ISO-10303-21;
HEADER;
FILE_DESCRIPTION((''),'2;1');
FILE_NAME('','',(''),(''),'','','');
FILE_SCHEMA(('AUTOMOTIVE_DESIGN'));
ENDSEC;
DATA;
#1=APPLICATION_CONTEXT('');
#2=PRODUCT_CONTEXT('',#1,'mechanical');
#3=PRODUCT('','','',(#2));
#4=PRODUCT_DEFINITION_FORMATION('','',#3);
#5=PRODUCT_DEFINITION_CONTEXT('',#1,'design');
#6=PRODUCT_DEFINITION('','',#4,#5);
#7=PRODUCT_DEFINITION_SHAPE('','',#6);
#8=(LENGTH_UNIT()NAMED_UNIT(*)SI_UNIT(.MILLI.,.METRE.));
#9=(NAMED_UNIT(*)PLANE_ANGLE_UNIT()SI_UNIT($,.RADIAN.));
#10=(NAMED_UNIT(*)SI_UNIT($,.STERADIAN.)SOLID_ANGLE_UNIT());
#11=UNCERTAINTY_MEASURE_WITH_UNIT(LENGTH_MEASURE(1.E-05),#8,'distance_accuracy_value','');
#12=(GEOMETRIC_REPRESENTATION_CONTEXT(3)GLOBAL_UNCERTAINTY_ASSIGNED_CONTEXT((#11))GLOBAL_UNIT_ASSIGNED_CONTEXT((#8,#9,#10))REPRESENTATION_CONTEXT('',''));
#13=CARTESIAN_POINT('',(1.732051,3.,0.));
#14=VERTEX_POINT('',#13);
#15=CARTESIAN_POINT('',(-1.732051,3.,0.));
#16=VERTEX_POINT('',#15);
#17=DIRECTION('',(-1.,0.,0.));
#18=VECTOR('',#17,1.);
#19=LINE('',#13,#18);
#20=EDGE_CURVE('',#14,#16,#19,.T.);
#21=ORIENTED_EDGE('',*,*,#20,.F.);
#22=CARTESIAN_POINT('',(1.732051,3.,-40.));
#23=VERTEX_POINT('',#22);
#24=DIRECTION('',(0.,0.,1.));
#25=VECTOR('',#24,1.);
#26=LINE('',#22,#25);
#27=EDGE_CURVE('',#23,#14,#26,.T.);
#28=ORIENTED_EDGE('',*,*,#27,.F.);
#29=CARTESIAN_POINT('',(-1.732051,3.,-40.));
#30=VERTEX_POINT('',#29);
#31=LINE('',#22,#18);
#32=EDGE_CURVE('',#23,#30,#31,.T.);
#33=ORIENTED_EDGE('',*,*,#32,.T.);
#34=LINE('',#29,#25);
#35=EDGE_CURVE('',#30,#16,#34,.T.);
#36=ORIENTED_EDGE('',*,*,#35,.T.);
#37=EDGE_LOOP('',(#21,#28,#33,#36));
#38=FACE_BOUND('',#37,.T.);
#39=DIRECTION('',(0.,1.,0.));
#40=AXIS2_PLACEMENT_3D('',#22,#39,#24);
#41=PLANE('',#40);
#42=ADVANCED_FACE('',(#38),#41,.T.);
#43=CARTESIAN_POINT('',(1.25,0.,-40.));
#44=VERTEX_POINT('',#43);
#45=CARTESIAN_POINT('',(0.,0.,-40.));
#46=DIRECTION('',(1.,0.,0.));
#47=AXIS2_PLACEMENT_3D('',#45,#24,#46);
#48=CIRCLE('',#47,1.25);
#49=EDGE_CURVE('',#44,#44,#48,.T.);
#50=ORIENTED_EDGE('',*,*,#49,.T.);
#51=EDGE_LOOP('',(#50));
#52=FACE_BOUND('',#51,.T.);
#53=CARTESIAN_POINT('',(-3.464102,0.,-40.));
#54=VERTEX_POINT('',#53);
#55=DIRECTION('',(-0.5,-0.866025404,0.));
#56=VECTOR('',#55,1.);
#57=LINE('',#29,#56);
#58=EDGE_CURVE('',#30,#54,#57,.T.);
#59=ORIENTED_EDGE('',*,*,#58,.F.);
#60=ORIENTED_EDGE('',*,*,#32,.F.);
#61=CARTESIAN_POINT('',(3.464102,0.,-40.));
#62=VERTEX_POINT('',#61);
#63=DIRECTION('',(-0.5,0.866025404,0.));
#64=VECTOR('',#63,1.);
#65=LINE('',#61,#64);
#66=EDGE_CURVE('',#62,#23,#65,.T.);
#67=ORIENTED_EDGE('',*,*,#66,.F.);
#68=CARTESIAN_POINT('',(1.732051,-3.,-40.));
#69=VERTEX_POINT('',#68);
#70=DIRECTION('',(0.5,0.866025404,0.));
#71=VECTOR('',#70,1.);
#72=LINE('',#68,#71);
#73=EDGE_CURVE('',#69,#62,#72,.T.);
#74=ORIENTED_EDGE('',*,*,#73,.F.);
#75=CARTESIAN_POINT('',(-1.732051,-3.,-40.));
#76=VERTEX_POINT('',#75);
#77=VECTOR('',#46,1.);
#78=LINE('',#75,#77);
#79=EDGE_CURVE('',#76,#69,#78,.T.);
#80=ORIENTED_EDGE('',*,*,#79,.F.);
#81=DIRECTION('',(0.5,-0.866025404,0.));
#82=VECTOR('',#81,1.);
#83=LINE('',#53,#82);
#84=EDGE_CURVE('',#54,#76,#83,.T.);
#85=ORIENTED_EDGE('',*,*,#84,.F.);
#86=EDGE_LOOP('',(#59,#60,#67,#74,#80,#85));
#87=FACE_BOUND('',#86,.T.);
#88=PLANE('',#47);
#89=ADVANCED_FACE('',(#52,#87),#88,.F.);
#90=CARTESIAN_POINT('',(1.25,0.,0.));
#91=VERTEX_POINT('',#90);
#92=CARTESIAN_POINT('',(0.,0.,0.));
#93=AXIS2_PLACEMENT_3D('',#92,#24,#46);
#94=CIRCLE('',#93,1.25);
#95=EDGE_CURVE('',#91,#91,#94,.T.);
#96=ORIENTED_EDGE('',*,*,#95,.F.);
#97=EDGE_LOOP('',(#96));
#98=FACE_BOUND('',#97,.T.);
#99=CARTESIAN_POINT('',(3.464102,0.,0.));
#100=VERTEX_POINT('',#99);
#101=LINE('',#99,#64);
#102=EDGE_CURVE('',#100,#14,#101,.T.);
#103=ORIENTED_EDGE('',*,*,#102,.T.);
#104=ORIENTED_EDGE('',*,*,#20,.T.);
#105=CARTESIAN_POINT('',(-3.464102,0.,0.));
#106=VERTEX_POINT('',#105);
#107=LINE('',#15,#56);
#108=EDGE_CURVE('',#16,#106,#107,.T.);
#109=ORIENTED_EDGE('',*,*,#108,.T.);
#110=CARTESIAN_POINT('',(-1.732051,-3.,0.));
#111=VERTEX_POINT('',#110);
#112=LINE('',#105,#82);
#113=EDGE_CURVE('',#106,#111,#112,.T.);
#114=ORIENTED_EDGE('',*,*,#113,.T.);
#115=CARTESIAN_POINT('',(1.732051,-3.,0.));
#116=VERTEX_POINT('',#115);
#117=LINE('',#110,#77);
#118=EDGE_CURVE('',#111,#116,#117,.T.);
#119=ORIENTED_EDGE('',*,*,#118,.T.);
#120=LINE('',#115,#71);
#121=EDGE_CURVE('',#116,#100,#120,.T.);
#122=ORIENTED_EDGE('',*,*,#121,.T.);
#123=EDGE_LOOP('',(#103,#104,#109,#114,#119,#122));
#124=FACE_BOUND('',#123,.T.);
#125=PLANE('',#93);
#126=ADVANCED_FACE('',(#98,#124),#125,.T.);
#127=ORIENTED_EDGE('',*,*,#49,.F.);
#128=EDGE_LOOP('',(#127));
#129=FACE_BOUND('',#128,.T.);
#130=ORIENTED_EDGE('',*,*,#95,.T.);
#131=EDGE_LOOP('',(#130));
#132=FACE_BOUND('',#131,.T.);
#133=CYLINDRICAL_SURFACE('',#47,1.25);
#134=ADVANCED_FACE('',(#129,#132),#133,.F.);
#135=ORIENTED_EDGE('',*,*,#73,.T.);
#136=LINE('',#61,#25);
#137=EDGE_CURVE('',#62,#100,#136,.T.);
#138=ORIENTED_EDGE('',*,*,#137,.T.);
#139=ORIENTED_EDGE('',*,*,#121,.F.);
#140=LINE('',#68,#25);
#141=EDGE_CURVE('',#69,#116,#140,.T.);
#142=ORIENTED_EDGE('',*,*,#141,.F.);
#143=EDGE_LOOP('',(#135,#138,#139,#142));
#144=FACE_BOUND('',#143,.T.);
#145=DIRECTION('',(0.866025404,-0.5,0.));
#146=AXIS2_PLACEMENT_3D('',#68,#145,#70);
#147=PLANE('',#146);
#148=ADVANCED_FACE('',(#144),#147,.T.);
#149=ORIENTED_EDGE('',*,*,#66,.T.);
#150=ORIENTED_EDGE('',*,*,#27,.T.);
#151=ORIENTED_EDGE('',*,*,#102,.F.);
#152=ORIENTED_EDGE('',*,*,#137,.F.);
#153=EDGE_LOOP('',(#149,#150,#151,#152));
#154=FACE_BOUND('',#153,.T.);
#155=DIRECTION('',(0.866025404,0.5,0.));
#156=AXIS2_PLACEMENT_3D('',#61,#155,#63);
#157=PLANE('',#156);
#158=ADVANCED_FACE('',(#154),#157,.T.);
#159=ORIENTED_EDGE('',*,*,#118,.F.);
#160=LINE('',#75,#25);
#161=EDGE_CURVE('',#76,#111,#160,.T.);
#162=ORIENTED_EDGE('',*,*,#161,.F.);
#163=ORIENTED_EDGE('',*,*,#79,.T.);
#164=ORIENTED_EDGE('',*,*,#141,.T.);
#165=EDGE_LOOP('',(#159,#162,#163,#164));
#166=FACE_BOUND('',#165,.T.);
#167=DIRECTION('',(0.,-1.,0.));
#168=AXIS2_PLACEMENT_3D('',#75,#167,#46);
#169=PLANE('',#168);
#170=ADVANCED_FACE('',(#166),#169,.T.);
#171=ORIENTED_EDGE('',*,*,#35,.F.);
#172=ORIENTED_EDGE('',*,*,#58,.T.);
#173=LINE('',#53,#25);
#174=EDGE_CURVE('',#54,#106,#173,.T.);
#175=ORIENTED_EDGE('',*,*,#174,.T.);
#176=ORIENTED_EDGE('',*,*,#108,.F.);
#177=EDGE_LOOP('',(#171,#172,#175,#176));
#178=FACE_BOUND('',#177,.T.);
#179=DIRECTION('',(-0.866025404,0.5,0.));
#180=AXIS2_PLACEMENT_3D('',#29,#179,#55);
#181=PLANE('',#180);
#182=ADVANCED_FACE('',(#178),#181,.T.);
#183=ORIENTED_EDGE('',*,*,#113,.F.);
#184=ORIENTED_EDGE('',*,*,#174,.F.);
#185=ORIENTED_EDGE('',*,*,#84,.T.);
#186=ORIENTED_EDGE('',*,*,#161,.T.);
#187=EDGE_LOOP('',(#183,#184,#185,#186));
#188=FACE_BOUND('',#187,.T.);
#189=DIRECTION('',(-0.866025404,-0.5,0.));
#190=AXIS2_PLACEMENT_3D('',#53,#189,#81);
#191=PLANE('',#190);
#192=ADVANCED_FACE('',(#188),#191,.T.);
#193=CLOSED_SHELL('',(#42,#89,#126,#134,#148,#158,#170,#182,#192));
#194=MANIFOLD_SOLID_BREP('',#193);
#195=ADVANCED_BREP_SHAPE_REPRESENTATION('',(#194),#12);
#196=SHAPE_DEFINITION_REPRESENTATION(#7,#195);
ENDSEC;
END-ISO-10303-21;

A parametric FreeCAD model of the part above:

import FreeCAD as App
import Part
import Sketcher
from FreeCAD import Vector
Q = App.Units.Quantity

doc = App.newDocument("Part")
body = doc.addObject("PartDesign::Body", "Body")

# Sketch on XY plane
sketch1 = body.newObject("Sketcher::SketchObject", "Sketch")
sketch1.AttachmentSupport = (doc.getObject("XY_Plane"), [""])
sketch1.MapMode = "FlatFace"
sketch1.addGeometry(Part.LineSegment(Vector(3.5, 0, 0), Vector(1.7, 3, 0)), False)
sketch1.addGeometry(Part.LineSegment(Vector(1.7, 3, 0), Vector(-1.7, 3, 0)), False)
sketch1.addGeometry(Part.LineSegment(Vector(-1.7, 3, 0), Vector(-3.5, 0, 0)), False)
sketch1.addGeometry(Part.LineSegment(Vector(-3.5, 0, 0), Vector(-1.7, -3, 0)), False)
sketch1.addGeometry(Part.LineSegment(Vector(-1.7, -3, 0), Vector(1.7, -3, 0)), False)
sketch1.addGeometry(Part.LineSegment(Vector(1.7, -3, 0), Vector(3.5, 0, 0)), False)
sketch1.addConstraint(Sketcher.Constraint("Coincident", 0, 2, 1, 1))
sketch1.addConstraint(Sketcher.Constraint("Coincident", 1, 2, 2, 1))
sketch1.addConstraint(Sketcher.Constraint("Coincident", 2, 2, 3, 1))
sketch1.addConstraint(Sketcher.Constraint("Coincident", 3, 2, 4, 1))
sketch1.addConstraint(Sketcher.Constraint("Coincident", 4, 2, 5, 1))
sketch1.addConstraint(Sketcher.Constraint("Coincident", 5, 2, 0, 1))
sketch1.addConstraint(Sketcher.Constraint("Horizontal", 1))
sketch1.addConstraint(Sketcher.Constraint("Horizontal", 4))
sketch1.addConstraint(Sketcher.Constraint("Symmetric", 0, 2, 3, 2, -1, 1))
sketch1.addConstraint(Sketcher.Constraint("Symmetric", 2, 2, 5, 2, -1, 1))
sketch1.addConstraint(Sketcher.Constraint("PointOnObject", 2, 2, -1))
sketch1.addConstraint(Sketcher.Constraint("Parallel", 2, 5))
sketch1.addConstraint(Sketcher.Constraint("Vertical", 1, 2, 3, 2))
sketch1.addConstraint(Sketcher.Constraint("Angle", 0, Q("120 deg")))
sketch1.addConstraint(Sketcher.Constraint("DistanceY", -1, 1, 0, 2, Q("3 mm")))
sketch1.addConstraint(Sketcher.Constraint("DistanceX", 1, 2, 1, 1, Q("3.464102 mm")))
pad1 = body.newObject("PartDesign::Pad", "Pad")
pad1.Profile = sketch1
pad1.Length = 40
pad1.Reversed = True

# Sketch on XY plane
sketch2 = body.newObject("Sketcher::SketchObject", "Sketch001")
sketch2.AttachmentSupport = (doc.getObject("XY_Plane"), [""])
sketch2.MapMode = "FlatFace"
sketch2.addGeometry(Part.Circle(Vector(0, 0, 0), Vector(0, 0, 1), 1.2), False)
sketch2.addConstraint(Sketcher.Constraint("Coincident", 0, 3, -1, 1))
sketch2.addConstraint(Sketcher.Constraint("Diameter", 0, Q("2.5 mm")))
pocket1 = body.newObject("PartDesign::Pocket", "Pocket")
pocket1.Profile = sketch2
pocket1.Type = "ThroughAll"

doc.recompute()
